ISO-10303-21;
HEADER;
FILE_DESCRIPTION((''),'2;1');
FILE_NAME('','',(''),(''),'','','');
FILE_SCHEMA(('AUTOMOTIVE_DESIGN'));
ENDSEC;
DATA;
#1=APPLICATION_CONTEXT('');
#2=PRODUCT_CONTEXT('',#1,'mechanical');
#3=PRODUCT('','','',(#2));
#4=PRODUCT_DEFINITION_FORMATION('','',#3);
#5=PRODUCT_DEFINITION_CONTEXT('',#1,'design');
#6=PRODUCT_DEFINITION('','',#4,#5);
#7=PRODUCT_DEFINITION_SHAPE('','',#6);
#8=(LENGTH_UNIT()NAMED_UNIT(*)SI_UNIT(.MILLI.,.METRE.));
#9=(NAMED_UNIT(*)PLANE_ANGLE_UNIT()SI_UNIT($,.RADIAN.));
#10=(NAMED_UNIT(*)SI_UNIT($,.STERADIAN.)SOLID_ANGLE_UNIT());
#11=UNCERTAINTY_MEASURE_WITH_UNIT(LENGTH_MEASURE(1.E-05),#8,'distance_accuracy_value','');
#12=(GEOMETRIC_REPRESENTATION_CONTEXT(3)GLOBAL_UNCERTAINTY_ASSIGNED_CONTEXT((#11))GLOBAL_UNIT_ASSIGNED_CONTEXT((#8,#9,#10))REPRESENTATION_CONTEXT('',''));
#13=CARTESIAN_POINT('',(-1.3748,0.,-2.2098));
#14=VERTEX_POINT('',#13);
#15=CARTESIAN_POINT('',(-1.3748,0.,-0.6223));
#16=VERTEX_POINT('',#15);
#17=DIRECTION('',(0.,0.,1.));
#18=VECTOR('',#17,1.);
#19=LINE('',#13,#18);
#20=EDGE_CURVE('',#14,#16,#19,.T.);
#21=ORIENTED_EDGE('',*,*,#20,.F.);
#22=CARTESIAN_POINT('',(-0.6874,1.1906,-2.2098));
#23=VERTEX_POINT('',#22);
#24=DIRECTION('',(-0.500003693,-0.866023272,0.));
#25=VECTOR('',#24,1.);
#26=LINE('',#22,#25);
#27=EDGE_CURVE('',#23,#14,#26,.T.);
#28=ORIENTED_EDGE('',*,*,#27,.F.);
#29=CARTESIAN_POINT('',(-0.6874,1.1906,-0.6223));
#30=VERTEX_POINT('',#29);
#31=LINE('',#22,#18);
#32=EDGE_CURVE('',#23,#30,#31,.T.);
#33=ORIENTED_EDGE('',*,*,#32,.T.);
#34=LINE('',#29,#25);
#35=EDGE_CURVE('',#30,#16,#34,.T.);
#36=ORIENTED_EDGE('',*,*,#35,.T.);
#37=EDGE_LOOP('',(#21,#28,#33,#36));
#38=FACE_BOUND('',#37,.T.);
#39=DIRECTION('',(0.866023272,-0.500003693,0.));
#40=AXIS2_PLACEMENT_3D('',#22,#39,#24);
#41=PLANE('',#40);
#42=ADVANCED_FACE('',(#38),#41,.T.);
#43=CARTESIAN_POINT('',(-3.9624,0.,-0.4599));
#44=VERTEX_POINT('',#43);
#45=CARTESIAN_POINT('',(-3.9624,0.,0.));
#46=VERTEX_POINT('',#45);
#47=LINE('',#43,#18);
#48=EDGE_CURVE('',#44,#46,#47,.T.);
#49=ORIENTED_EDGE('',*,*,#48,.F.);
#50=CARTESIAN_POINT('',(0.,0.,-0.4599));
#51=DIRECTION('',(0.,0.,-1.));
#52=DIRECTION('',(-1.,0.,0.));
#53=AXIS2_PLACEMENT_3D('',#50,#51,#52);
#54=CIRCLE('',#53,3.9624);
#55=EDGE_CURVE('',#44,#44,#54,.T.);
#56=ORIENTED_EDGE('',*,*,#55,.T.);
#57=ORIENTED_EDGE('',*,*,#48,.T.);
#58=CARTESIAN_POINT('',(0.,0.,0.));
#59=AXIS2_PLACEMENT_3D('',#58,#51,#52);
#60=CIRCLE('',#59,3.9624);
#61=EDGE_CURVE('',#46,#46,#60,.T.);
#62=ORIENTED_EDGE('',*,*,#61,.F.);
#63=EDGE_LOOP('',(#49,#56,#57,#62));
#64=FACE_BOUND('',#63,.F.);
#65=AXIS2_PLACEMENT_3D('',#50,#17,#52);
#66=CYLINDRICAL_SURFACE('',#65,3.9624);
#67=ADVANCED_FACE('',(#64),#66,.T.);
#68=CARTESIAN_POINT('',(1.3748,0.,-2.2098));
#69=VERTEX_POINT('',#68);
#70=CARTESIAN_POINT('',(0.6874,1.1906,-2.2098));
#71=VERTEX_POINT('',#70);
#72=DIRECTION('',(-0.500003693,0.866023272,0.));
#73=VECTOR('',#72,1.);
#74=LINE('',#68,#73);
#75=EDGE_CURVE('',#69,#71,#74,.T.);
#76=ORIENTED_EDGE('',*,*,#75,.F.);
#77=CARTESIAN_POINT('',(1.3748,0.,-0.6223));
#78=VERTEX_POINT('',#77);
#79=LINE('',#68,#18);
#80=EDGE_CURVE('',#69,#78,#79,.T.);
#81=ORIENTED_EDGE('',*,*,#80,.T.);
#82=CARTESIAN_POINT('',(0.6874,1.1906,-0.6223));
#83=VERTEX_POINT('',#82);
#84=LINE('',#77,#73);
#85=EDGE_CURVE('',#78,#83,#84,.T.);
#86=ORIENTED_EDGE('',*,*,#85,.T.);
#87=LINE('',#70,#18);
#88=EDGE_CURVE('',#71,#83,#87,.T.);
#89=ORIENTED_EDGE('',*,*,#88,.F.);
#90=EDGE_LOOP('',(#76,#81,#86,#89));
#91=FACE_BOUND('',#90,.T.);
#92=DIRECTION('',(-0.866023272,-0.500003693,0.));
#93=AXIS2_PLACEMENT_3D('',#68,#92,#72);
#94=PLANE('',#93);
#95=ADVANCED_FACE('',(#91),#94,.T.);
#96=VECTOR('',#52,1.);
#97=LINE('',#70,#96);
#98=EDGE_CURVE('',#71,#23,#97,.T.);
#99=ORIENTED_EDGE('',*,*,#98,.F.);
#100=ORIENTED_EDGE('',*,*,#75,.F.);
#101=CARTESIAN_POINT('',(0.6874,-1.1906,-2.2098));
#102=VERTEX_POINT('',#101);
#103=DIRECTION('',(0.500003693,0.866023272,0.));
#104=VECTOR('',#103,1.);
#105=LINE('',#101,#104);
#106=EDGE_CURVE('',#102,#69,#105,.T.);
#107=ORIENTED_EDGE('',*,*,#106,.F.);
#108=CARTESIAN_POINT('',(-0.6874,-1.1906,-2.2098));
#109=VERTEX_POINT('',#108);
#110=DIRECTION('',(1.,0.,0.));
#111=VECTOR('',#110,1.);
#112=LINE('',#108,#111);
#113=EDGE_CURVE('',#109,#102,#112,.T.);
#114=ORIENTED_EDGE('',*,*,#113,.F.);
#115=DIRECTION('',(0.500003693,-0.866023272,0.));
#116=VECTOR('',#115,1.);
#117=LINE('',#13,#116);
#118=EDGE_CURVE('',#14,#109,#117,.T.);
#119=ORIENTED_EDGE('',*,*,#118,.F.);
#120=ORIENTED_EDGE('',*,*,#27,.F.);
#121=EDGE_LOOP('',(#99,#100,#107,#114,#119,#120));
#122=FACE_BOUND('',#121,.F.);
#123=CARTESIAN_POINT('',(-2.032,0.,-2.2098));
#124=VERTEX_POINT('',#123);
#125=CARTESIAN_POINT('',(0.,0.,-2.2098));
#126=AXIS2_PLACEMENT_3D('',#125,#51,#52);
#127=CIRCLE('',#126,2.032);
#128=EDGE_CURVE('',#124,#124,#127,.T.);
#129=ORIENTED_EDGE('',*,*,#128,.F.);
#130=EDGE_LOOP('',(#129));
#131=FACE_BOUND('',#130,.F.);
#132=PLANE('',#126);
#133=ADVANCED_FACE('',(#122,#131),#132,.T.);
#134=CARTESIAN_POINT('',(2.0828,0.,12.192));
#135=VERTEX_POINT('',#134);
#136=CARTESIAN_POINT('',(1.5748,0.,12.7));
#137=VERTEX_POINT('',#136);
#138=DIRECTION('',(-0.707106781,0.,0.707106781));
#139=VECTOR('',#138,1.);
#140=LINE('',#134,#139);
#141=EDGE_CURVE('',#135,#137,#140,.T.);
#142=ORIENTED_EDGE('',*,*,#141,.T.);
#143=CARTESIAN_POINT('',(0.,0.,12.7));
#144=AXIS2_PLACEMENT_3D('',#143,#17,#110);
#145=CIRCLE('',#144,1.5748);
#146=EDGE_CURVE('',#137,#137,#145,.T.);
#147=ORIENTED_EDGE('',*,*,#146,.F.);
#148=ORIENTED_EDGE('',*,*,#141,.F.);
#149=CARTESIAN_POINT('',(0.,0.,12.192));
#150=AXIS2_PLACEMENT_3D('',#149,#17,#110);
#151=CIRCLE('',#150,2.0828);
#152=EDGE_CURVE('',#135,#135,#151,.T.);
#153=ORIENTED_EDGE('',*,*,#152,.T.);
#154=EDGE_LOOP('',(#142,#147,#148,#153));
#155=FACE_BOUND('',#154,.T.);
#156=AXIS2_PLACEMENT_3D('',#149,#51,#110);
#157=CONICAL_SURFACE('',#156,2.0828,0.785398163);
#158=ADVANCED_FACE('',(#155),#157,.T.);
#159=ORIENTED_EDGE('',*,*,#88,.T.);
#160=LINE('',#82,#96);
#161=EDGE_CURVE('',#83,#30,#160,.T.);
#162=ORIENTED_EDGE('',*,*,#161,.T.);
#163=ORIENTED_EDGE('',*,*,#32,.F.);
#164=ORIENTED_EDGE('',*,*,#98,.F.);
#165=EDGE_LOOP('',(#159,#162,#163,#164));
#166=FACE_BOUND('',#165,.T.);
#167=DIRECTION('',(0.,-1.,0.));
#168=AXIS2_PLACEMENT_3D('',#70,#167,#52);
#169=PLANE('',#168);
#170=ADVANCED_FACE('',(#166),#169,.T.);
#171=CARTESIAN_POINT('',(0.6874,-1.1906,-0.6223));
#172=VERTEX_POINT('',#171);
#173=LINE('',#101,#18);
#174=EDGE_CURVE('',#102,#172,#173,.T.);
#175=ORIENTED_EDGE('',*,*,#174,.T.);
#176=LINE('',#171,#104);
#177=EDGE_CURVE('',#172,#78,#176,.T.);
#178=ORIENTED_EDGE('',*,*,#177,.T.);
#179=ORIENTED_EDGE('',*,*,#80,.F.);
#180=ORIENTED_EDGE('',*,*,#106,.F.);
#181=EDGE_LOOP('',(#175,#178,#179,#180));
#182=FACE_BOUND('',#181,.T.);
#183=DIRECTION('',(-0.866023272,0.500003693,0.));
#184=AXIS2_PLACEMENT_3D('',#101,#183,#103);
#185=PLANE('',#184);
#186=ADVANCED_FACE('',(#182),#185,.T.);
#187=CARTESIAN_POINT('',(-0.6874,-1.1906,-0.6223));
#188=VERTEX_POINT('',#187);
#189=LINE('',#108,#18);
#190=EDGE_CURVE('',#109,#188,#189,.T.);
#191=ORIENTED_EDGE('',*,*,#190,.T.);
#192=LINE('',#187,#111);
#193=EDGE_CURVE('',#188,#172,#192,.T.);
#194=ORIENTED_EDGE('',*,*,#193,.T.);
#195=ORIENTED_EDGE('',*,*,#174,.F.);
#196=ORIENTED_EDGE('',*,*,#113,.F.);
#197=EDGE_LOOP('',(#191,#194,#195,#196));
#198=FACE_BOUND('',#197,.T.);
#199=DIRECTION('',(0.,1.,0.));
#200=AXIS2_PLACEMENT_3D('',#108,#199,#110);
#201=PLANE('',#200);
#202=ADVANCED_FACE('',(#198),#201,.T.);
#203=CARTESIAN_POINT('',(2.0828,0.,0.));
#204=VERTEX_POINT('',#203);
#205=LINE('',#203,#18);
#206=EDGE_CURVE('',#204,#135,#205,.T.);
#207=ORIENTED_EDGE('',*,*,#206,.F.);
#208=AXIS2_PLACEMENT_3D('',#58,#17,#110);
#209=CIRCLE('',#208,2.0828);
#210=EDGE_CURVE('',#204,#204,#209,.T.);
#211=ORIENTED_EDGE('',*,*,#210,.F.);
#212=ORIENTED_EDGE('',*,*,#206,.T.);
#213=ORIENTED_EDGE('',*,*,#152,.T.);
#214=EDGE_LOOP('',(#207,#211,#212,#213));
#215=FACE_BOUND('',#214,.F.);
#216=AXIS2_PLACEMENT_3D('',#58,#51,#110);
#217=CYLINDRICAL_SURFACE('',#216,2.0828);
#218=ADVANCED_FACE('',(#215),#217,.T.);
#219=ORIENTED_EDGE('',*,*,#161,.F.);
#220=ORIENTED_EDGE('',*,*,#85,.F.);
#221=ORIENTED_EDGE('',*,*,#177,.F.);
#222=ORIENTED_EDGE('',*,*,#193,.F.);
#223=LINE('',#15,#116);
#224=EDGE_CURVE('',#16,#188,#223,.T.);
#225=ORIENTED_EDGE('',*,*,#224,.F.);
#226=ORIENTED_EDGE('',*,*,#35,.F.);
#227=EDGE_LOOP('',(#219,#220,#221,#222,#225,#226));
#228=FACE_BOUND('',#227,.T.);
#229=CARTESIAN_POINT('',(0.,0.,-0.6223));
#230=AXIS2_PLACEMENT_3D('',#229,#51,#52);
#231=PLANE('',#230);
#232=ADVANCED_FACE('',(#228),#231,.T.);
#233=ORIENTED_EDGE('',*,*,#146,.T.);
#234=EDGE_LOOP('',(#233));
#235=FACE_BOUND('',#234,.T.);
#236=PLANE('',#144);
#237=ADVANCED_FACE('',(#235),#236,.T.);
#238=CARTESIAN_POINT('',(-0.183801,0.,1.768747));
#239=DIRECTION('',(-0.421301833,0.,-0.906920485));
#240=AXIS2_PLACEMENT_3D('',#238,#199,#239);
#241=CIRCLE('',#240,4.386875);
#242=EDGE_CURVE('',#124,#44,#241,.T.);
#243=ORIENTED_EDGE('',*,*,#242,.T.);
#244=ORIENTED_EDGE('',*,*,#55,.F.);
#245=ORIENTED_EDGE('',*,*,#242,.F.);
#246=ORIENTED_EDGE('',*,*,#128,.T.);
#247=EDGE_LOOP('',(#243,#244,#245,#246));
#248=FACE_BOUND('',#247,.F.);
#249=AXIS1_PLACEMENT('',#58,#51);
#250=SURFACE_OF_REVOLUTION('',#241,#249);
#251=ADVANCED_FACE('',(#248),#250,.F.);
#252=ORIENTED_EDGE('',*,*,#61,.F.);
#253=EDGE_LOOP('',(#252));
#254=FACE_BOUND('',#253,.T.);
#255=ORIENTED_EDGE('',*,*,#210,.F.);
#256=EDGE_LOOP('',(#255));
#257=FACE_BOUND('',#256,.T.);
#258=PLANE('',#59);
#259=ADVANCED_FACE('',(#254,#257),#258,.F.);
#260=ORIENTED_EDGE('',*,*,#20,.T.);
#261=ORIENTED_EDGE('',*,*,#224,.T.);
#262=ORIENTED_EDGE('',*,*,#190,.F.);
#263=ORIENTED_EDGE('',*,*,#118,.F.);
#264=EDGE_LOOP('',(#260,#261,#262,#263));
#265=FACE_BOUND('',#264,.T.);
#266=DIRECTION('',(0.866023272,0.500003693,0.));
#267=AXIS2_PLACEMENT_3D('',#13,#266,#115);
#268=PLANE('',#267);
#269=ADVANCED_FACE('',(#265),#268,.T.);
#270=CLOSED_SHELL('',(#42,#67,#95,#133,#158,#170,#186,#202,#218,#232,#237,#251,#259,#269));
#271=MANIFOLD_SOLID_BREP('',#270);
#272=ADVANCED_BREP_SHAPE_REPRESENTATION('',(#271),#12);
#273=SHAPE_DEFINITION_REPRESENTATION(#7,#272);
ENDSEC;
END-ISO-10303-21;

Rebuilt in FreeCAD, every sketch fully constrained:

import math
import FreeCAD as App
import Part
import Sketcher
from FreeCAD import Vector
Q = App.Units.Quantity


def edges_at(feature, points):
    """Names of the edges that pass closest to the given points."""
    edges = feature.Shape.Edges
    near = lambda p: min(range(len(edges)), key=lambda i: edges[i].distToShape(Part.Vertex(*p))[0])
    return sorted({f"Edge{near(p) + 1}" for p in points})

doc = App.newDocument("Part")
params = doc.addObject("Spreadsheet::Sheet", "Params")
for row, (alias, value) in enumerate([
    ("sketch1_diameter", "0.164 in"),
    ("pad1_length", "0.5 in"),
    ("sketch2_width", "0.08 in"),
    ("sketch2_width2", "0.156 in"),
    ("sketch2_height", "0.087 in"),
    ("revolution_angle", "360 deg"),
    ("pocket1_length", "0.0625 in"),
    ("chamfer_size", "0.02 in"),
], start=1):
    params.set(f"A{row}", alias)
    params.set(f"B{row}", "=" + value)
    params.setAlias(f"B{row}", alias)

body = doc.addObject("PartDesign::Body", "Body")

sketch1 = body.newObject("Sketcher::SketchObject", "Sketch")
sketch1.AttachmentSupport = (doc.getObject("XY_Plane"), [""])
sketch1.MapMode = "FlatFace"
sketch1.addGeometry(Part.Circle(Vector(0, 0, 0), Vector(0, 0, 1), 2.0828), False)
sketch1.addConstraint([
    Sketcher.Constraint("Coincident", 0, 3, -1, 1),
    Sketcher.Constraint("Diameter", 0, Q("0.164 in")),
])
sketch1.setExpression("Constraints[1]", "Params.sketch1_diameter")
pad1 = body.newObject("PartDesign::Pad", "Pad")
pad1.Profile = sketch1
pad1.setExpression("Length", "Params.pad1_length")

sketch2 = body.newObject("Sketcher::SketchObject", "Sketch001")
sketch2.AttachmentSupport = (doc.getObject("XZ_Plane"), [""])
sketch2.MapMode = "FlatFace"
sketch2.addGeometry([
    Part.LineSegment(Vector(-3.9624, 0, 0), Vector(0, 0, 0)),
    Part.LineSegment(Vector(0, 0, 0), Vector(0, -2.2098, 0)),
    Part.LineSegment(Vector(0, -2.2098, 0), Vector(-2.032, -2.2098, 0)),
    Part.ArcOfCircle(Part.Circle(Vector(-0.1837, 1.7689, 0), Vector(0, 0, 1), 4.387057), math.radians(-149.466515), math.radians(-114.917164)),
    Part.LineSegment(Vector(-3.9624, -0.4599, 0), Vector(-3.9624, 0, 0)),
], False)
sketch2.addConstraint([
    Sketcher.Constraint("Coincident", 0, 2, 1, 1),
    Sketcher.Constraint("Coincident", 1, 2, 2, 1),
    Sketcher.Constraint("Coincident", 2, 2, 3, 2),
    Sketcher.Constraint("Coincident", 3, 1, 4, 1),
    Sketcher.Constraint("Coincident", 4, 2, 0, 1),
    Sketcher.Constraint("Horizontal", 0),
    Sketcher.Constraint("Vertical", 1),
    Sketcher.Constraint("Horizontal", 2),
    Sketcher.Constraint("Vertical", 4),
    Sketcher.Constraint("Coincident", 0, 2, -1, 1),
    Sketcher.Constraint("DistanceX", 2, 2, 2, 1, Q("0.08 in")),
    Sketcher.Constraint("DistanceX", 0, 1, 0, 2, Q("0.156 in")),
    Sketcher.Constraint("DistanceY", 1, 2, 1, 1, Q("0.087 in")),
    Sketcher.Constraint("Radius", 3, Q("4.387 mm")),
    Sketcher.Constraint("DistanceY", 4, 1, 4, 2, Q("0.0181 in")),
])
sketch2.setExpression("Constraints[10]", "Params.sketch2_width")
sketch2.setExpression("Constraints[11]", "Params.sketch2_width2")
sketch2.setExpression("Constraints[12]", "Params.sketch2_height")
revolution = body.newObject("PartDesign::Revolution", "Revolution")
revolution.Profile = sketch2
revolution.ReferenceAxis = (sketch2, ["V_Axis"])
revolution.setExpression("Angle", "Params.revolution_angle")

sketch3 = body.newObject("Sketcher::SketchObject", "Sketch002")
sketch3.AttachmentSupport = (doc.getObject("XY_Plane"), [""])
sketch3.MapMode = "FlatFace"
sketch3.AttachmentOffset = App.Placement(Vector(0, 0, -0.087 * 25.4), App.Rotation())
sketch3.addGeometry([
    Part.LineSegment(Vector(-0.6874, 1.1906, 0), Vector(0.6874, 1.1906, 0)),
    Part.LineSegment(Vector(0.6874, 1.1906, 0), Vector(1.3748, 0, 0)),
    Part.LineSegment(Vector(1.3748, 0, 0), Vector(0.6874, -1.1906, 0)),
    Part.LineSegment(Vector(0.6874, -1.1906, 0), Vector(-0.6874, -1.1906, 0)),
    Part.LineSegment(Vector(-0.6874, -1.1906, 0), Vector(-1.3748, 0, 0)),
    Part.LineSegment(Vector(-1.3748, 0, 0), Vector(-0.6874, 1.1906, 0)),
], False)
sketch3.addConstraint([
    Sketcher.Constraint("Coincident", 0, 2, 1, 1),
    Sketcher.Constraint("Coincident", 1, 2, 2, 1),
    Sketcher.Constraint("Coincident", 2, 2, 3, 1),
    Sketcher.Constraint("Coincident", 3, 2, 4, 1),
    Sketcher.Constraint("Coincident", 4, 2, 5, 1),
    Sketcher.Constraint("Coincident", 5, 2, 0, 1),
    Sketcher.Constraint("Horizontal", 0),
    Sketcher.Constraint("Horizontal", 3),
    Sketcher.Constraint("Symmetric", 0, 2, 3, 2, -1, 1),
    Sketcher.Constraint("Symmetric", 1, 2, 4, 2, -1, 1),
    Sketcher.Constraint("PointOnObject", 1, 2, -1),
    Sketcher.Constraint("Parallel", 2, 5),
    Sketcher.Constraint("Vertical", 0, 2, 2, 2),
    Sketcher.Constraint("Angle", 1, Q("-59.9998 deg")),
    Sketcher.Constraint("DistanceY", 2, 2, 0, 2, Q("0.093748 in")),
    Sketcher.Constraint("DistanceX", 0, 1, 0, 2, Q("1.3748 mm")),
])
pocket1 = body.newObject("PartDesign::Pocket", "Pocket")
pocket1.Profile = sketch3
pocket1.setExpression("Length", "Params.pocket1_length")
pocket1.Reversed = True
doc.recompute()

chamfer = body.newObject("PartDesign::Chamfer", "Chamfer")
chamfer.Base = (pocket1, edges_at(pocket1, [(-2.083, 0, 12.7)]))
chamfer.setExpression("Size", "Params.chamfer_size")

doc.recompute()
